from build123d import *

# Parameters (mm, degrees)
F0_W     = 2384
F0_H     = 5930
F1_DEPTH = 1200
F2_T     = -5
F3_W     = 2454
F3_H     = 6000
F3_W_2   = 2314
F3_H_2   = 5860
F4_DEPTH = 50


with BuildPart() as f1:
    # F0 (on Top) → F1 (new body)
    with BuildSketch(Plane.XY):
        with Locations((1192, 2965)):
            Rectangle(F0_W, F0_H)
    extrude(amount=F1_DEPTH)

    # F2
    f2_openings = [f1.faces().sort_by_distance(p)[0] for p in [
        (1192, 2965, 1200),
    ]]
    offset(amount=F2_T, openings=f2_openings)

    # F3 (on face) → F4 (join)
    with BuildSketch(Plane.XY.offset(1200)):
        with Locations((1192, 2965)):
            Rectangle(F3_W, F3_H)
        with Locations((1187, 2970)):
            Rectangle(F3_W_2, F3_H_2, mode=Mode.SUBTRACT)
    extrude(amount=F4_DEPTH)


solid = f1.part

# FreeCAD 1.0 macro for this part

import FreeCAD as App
import Part
import Sketcher


def faces_at(feature, points):
    """Names of the faces that lie closest to the given points."""
    faces = feature.Shape.Faces
    near = lambda p: min(range(len(faces)), key=lambda i: faces[i].distToShape(Part.Vertex(*p))[0])
    return sorted({f"Face{near(p) + 1}" for p in points})

doc = App.newDocument("Part")
params = doc.addObject("Spreadsheet::Sheet", "Params")
for row, (alias, value) in enumerate([
    ("sketch1_width", "2384 mm"),
    ("sketch1_height", "5930 mm"),
    ("pad1_length", "1200 mm"),
    ("thickness_wall", "5 mm"),
    ("sketch2_width", "2454 mm"),
    ("sketch2_width2", "2314 mm"),
    ("sketch2_height", "6000 mm"),
    ("sketch2_height2", "5860 mm"),
    ("pad2_length", "50 mm"),
], start=1):
    params.set(f"A{row}", alias)
    params.set(f"B{row}", "=" + value)
    params.setAlias(f"B{row}", alias)

body = doc.addObject("PartDesign::Body", "Body")

# Sketch on XY plane
sketch1 = doc.addObject("Sketcher::SketchObject", "Sketch")
body.addObject(sketch1)
sketch1.AttachmentSupport = (doc.XY_Plane, [""])
sketch1.MapMode = "FlatFace"
sketch1.addGeometry([
    Part.LineSegment(App.Vector(0, 5930, 0), App.Vector(0, 0, 0)),
    Part.LineSegment(App.Vector(0, 0, 0), App.Vector(2384, 0, 0)),
    Part.LineSegment(App.Vector(2384, 0, 0), App.Vector(2384, 5930, 0)),
    Part.LineSegment(App.Vector(2384, 5930, 0), App.Vector(0, 5930, 0)),
], False)
sketch1.addConstraint([
    Sketcher.Constraint("Coincident", 0, 2, 1, 1),
    Sketcher.Constraint("Coincident", 1, 2, 2, 1),
    Sketcher.Constraint("Coincident", 2, 2, 3, 1),
    Sketcher.Constraint("Coincident", 3, 2, 0, 1),
    Sketcher.Constraint("Vertical", 0),
    Sketcher.Constraint("Horizontal", 1),
    Sketcher.Constraint("Vertical", 2),
    Sketcher.Constraint("Horizontal", 3),
    Sketcher.Constraint("Coincident", 0, 2, -1, 1),
    Sketcher.Constraint("DistanceX", 1, 1, 1, 2, 2384.0),
    Sketcher.Constraint("DistanceY", 0, 2, 0, 1, 5930.0),
])
sketch1.setExpression("Constraints[9]", "Params.sketch1_width")
sketch1.setExpression("Constraints[10]", "Params.sketch1_height")
pad1 = doc.addObject("PartDesign::Pad", "Pad")
body.addObject(pad1)
pad1.Profile = sketch1
pad1.setExpression("Length", "Params.pad1_length")
doc.recompute()

thickness = doc.addObject("PartDesign::Thickness", "Thickness")
body.addObject(thickness)
thickness.Base = (pad1, faces_at(pad1, [(1192, 2965, 1200)]))
thickness.setExpression("Value", "Params.thickness_wall")
thickness.Reversed = True
thickness.Join = "Arc"

# Sketch on XY plane
sketch2 = doc.addObject("Sketcher::SketchObject", "Sketch001")
body.addObject(sketch2)
sketch2.AttachmentSupport = (doc.XY_Plane, [""])
sketch2.MapMode = "FlatFace"
sketch2.AttachmentOffset = App.Placement(App.Vector(0, 0, 1200), App.Rotation())
sketch2.addGeometry([
    Part.LineSegment(App.Vector(-35, 5965, 0), App.Vector(-35, -35, 0)),  # 0
    Part.LineSegment(App.Vector(-35, -35, 0), App.Vector(2419, -35, 0)),  # 1
    Part.LineSegment(App.Vector(2419, -35, 0), App.Vector(2419, 5965, 0)),  # 2
    Part.LineSegment(App.Vector(2419, 5965, 0), App.Vector(-35, 5965, 0)),  # 3
    Part.LineSegment(App.Vector(2344, 40, 0), App.Vector(30, 40, 0)),  # 4
    Part.LineSegment(App.Vector(30, 40, 0), App.Vector(30, 5900, 0)),  # 5
    Part.LineSegment(App.Vector(30, 5900, 0), App.Vector(2344, 5900, 0)),  # 6
    Part.LineSegment(App.Vector(2344, 5900, 0), App.Vector(2344, 40, 0)),  # 7
], False)
sketch2.addConstraint([
    Sketcher.Constraint("Coincident", 0, 2, 1, 1),
    Sketcher.Constraint("Coincident", 1, 2, 2, 1),
    Sketcher.Constraint("Coincident", 2, 2, 3, 1),
    Sketcher.Constraint("Coincident", 3, 2, 0, 1),
    Sketcher.Constraint("Coincident", 4, 2, 5, 1),
    Sketcher.Constraint("Coincident", 5, 2, 6, 1),
    Sketcher.Constraint("Coincident", 6, 2, 7, 1),
    Sketcher.Constraint("Coincident", 7, 2, 4, 1),
    Sketcher.Constraint("Vertical", 0),
    Sketcher.Constraint("Horizontal", 1),
    Sketcher.Constraint("Vertical", 2),
    Sketcher.Constraint("Horizontal", 3),
    Sketcher.Constraint("Horizontal", 4),
    Sketcher.Constraint("Vertical", 5),
    Sketcher.Constraint("Horizontal", 6),
    Sketcher.Constraint("Vertical", 7),
    Sketcher.Constraint("DistanceX", 1, 1, 1, 2, 2454.0),
    Sketcher.Constraint("DistanceX", 4, 2, 4, 1, 2314.0),
    Sketcher.Constraint("DistanceY", 0, 2, 0, 1, 6000.0),
    Sketcher.Constraint("DistanceY", 5, 1, 5, 2, 5860.0),
    Sketcher.Constraint("DistanceX", 0, 2, -1, 1, 35.0),
    Sketcher.Constraint("DistanceY", 0, 2, -1, 1, 35.0),
    Sketcher.Constraint("DistanceX", -1, 1, 4, 2, 30.0),
    Sketcher.Constraint("DistanceY", -1, 1, 4, 2, 40.0),
])
sketch2.setExpression("Constraints[16]", "Params.sketch2_width")
sketch2.setExpression("Constraints[17]", "Params.sketch2_width2")
sketch2.setExpression("Constraints[18]", "Params.sketch2_height")
sketch2.setExpression("Constraints[19]", "Params.sketch2_height2")
pad2 = doc.addObject("PartDesign::Pad", "Pad001")
body.addObject(pad2)
pad2.Profile = sketch2
pad2.setExpression("Length", "Params.pad2_length")

doc.recompute()
